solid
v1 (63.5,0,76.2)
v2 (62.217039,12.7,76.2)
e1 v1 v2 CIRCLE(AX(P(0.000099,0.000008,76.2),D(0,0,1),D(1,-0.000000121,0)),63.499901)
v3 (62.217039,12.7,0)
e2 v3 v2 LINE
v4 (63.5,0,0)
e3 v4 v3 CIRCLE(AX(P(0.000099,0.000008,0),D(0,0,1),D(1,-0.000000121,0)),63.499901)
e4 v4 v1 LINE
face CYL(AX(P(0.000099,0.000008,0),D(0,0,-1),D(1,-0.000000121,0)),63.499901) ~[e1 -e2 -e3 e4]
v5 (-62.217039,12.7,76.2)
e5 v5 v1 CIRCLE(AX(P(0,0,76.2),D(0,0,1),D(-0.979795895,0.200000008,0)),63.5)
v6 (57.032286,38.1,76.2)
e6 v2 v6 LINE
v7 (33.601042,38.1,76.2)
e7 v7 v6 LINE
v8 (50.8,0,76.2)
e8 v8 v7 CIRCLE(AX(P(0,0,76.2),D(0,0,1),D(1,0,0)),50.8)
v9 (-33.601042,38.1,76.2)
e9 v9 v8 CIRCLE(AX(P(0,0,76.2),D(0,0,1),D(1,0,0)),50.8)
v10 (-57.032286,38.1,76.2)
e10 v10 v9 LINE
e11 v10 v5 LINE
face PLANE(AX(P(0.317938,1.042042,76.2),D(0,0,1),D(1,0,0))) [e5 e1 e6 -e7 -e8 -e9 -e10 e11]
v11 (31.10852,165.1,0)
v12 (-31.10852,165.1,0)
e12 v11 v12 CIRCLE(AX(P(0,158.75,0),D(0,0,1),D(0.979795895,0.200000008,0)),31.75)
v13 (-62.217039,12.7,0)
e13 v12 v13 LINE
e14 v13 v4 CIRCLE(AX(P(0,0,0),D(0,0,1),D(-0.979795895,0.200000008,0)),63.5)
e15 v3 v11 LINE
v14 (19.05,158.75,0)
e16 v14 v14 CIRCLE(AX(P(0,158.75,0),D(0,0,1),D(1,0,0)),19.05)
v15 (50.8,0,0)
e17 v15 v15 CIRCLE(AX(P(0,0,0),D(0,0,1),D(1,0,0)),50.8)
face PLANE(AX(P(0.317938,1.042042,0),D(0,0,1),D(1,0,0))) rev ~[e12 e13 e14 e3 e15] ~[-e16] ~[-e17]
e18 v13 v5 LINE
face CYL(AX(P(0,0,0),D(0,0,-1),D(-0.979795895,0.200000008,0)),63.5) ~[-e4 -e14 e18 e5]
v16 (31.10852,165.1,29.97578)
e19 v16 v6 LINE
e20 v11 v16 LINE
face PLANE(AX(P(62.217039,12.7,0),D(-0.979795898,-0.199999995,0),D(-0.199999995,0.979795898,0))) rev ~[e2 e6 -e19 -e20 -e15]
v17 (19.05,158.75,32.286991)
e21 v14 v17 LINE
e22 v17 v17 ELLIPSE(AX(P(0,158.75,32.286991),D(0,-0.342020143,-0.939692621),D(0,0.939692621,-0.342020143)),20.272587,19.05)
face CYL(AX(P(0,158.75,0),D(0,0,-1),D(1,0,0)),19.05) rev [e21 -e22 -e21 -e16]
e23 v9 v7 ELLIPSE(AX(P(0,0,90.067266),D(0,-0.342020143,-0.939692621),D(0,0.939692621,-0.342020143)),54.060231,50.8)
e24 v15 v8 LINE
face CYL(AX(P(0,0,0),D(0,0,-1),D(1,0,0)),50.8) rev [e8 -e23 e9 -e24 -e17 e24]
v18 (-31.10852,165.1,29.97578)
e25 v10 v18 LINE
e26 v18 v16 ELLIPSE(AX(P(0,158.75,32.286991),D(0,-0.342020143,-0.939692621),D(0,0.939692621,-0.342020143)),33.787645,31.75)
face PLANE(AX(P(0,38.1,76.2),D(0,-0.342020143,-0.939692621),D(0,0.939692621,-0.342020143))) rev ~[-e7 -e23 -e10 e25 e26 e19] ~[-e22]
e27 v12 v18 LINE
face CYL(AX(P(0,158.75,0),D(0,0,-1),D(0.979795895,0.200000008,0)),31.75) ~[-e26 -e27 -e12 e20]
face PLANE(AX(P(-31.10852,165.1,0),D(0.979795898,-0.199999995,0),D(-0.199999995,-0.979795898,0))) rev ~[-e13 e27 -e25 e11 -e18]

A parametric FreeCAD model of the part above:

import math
import FreeCAD as App
import Part
import Sketcher
from FreeCAD import Vector
Q = App.Units.Quantity


def add_polygon(sketch, points):
    """Adds a closed chain of lines whose ends are joined by coincident constraints."""
    first, n = sketch.GeometryCount, len(points)
    for a, b in zip(points, points[1:] + points[:1]):
        sketch.addGeometry(Part.LineSegment(App.Vector(*a, 0), App.Vector(*b, 0)), False)
    for i in range(n):
        sketch.addConstraint(Sketcher.Constraint("Coincident", first + i, 2, first + (i + 1) % n, 1))

doc = App.newDocument("Part")
params = doc.addObject("Spreadsheet::Sheet", "Params")
for row, (alias, value) in enumerate([
    ("sketch1_diameter", "4 in"),
    ("sketch1_diameter2", "1.5 in"),
    ("sketch1_radius", "2.5 in"),
    ("sketch1_radius2", "1.25 in"),
    ("pad1_length", "3 in"),
    ("pocket1_length", "5 in"),
], start=1):
    params.set(f"A{row}", alias)
    params.set(f"B{row}", "=" + value)
    params.setAlias(f"B{row}", alias)

body = doc.addObject("PartDesign::Body", "Body")

# Sketch on XY plane
sketch1 = body.newObject("Sketcher::SketchObject", "Sketch")
sketch1.AttachmentSupport = (doc.getObject("XY_Plane"), [""])
sketch1.MapMode = "FlatFace"
sketch1.addGeometry([
    Part.ArcOfCircle(Part.Circle(Vector(0, 0, 0), Vector(0, 0, 1), 63.5), math.radians(168.46304), math.radians(360)),  # 0
    Part.ArcOfCircle(Part.Circle(Vector(0.000099, 0.000008, 0), Vector(0, 0, 1), 63.499901), math.radians(-0.000007), math.radians(11.53697)),  # 1
    Part.LineSegment(Vector(62.217039, 12.7, 0), Vector(31.10852, 165.1, 0)),  # 2
    Part.ArcOfCircle(Part.Circle(Vector(0, 158.75, 0), Vector(0, 0, 1), 31.75), math.radians(11.53696), math.radians(168.46304)),  # 3
    Part.LineSegment(Vector(-31.10852, 165.1, 0), Vector(-62.217039, 12.7, 0)),  # 4
    Part.Circle(Vector(0, 0, 0), Vector(0, 0, 1), 50.8),  # 5
    Part.Circle(Vector(0, 158.75, 0), Vector(0, 0, 1), 19.05),  # 6
], False)
sketch1.addConstraint([
    Sketcher.Constraint("Coincident", 0, 2, 1, 1),
    Sketcher.Constraint("Coincident", 1, 2, 2, 1),
    Sketcher.Constraint("Coincident", 2, 2, 3, 1),
    Sketcher.Constraint("Coincident", 3, 2, 4, 1),
    Sketcher.Constraint("Coincident", 4, 2, 0, 1),
    Sketcher.Constraint("Coincident", 0, 3, -1, 1),
    Sketcher.Constraint("Coincident", 5, 3, -1, 1),
    Sketcher.Constraint("Coincident", 6, 3, 3, 3),
    Sketcher.Constraint("PointOnObject", 3, 3, -2),
    Sketcher.Constraint("PointOnObject", 0, 2, -1),
    Sketcher.Constraint("Diameter", 5, Q("4 in")),
    Sketcher.Constraint("Diameter", 6, Q("1.5 in")),
    Sketcher.Constraint("Radius", 0, Q("2.5 in")),
    Sketcher.Constraint("Radius", 3, Q("1.25 in")),
    Sketcher.Constraint("DistanceY", 1, 2, 2, 2, Q("6 in")),
    Sketcher.Constraint("DistanceY", -1, 1, 1, 2, Q("0.5 in")),
    Sketcher.Constraint("DistanceY", -1, 1, 3, 2, Q("6.5 in")),
    Sketcher.Constraint("DistanceY", -1, 1, 4, 2, Q("0.5 in")),
    Sketcher.Constraint("DistanceY", -1, 1, 3, 3, Q("6.25 in")),
    Sketcher.Constraint("Radius", 1, Q("63.499901 mm")),
    Sketcher.Constraint("Distance", 2, Q("155.542599 mm")),
])
sketch1.setExpression("Constraints[10]", "Params.sketch1_diameter")
sketch1.setExpression("Constraints[11]", "Params.sketch1_diameter2")
sketch1.setExpression("Constraints[12]", "Params.sketch1_radius")
sketch1.setExpression("Constraints[13]", "Params.sketch1_radius2")
pad1 = body.newObject("PartDesign::Pad", "Pad")
pad1.Profile = sketch1
pad1.setExpression("Length", "Params.pad1_length")

# Sketch on YZ plane
sketch2 = body.newObject("Sketcher::SketchObject", "Sketch001")
sketch2.AttachmentSupport = (doc.getObject("YZ_Plane"), [""])
sketch2.MapMode = "FlatFace"
add_polygon(sketch2, [(220, 76), (38, 76), (220, 10)])  # lines 0-2
sketch2.addConstraint([
    Sketcher.Constraint("Horizontal", 0),
    Sketcher.Constraint("Vertical", 2),
    Sketcher.Constraint("DistanceY", -1, 1, 0, 2, Q("3 in")),
    Sketcher.Constraint("Angle", 1, Q("-20 deg")),
    Sketcher.Constraint("DistanceX", -1, 1, 0, 2, Q("1.5 in")),
    Sketcher.Constraint("DistanceX", 0, 2, 0, 1, Q("182.265718 mm")),
])
pocket1 = body.newObject("PartDesign::Pocket", "Pocket")
pocket1.Profile = sketch2
pocket1.setExpression("Length", "Params.pocket1_length")
pocket1.Midplane = True

doc.recompute()
